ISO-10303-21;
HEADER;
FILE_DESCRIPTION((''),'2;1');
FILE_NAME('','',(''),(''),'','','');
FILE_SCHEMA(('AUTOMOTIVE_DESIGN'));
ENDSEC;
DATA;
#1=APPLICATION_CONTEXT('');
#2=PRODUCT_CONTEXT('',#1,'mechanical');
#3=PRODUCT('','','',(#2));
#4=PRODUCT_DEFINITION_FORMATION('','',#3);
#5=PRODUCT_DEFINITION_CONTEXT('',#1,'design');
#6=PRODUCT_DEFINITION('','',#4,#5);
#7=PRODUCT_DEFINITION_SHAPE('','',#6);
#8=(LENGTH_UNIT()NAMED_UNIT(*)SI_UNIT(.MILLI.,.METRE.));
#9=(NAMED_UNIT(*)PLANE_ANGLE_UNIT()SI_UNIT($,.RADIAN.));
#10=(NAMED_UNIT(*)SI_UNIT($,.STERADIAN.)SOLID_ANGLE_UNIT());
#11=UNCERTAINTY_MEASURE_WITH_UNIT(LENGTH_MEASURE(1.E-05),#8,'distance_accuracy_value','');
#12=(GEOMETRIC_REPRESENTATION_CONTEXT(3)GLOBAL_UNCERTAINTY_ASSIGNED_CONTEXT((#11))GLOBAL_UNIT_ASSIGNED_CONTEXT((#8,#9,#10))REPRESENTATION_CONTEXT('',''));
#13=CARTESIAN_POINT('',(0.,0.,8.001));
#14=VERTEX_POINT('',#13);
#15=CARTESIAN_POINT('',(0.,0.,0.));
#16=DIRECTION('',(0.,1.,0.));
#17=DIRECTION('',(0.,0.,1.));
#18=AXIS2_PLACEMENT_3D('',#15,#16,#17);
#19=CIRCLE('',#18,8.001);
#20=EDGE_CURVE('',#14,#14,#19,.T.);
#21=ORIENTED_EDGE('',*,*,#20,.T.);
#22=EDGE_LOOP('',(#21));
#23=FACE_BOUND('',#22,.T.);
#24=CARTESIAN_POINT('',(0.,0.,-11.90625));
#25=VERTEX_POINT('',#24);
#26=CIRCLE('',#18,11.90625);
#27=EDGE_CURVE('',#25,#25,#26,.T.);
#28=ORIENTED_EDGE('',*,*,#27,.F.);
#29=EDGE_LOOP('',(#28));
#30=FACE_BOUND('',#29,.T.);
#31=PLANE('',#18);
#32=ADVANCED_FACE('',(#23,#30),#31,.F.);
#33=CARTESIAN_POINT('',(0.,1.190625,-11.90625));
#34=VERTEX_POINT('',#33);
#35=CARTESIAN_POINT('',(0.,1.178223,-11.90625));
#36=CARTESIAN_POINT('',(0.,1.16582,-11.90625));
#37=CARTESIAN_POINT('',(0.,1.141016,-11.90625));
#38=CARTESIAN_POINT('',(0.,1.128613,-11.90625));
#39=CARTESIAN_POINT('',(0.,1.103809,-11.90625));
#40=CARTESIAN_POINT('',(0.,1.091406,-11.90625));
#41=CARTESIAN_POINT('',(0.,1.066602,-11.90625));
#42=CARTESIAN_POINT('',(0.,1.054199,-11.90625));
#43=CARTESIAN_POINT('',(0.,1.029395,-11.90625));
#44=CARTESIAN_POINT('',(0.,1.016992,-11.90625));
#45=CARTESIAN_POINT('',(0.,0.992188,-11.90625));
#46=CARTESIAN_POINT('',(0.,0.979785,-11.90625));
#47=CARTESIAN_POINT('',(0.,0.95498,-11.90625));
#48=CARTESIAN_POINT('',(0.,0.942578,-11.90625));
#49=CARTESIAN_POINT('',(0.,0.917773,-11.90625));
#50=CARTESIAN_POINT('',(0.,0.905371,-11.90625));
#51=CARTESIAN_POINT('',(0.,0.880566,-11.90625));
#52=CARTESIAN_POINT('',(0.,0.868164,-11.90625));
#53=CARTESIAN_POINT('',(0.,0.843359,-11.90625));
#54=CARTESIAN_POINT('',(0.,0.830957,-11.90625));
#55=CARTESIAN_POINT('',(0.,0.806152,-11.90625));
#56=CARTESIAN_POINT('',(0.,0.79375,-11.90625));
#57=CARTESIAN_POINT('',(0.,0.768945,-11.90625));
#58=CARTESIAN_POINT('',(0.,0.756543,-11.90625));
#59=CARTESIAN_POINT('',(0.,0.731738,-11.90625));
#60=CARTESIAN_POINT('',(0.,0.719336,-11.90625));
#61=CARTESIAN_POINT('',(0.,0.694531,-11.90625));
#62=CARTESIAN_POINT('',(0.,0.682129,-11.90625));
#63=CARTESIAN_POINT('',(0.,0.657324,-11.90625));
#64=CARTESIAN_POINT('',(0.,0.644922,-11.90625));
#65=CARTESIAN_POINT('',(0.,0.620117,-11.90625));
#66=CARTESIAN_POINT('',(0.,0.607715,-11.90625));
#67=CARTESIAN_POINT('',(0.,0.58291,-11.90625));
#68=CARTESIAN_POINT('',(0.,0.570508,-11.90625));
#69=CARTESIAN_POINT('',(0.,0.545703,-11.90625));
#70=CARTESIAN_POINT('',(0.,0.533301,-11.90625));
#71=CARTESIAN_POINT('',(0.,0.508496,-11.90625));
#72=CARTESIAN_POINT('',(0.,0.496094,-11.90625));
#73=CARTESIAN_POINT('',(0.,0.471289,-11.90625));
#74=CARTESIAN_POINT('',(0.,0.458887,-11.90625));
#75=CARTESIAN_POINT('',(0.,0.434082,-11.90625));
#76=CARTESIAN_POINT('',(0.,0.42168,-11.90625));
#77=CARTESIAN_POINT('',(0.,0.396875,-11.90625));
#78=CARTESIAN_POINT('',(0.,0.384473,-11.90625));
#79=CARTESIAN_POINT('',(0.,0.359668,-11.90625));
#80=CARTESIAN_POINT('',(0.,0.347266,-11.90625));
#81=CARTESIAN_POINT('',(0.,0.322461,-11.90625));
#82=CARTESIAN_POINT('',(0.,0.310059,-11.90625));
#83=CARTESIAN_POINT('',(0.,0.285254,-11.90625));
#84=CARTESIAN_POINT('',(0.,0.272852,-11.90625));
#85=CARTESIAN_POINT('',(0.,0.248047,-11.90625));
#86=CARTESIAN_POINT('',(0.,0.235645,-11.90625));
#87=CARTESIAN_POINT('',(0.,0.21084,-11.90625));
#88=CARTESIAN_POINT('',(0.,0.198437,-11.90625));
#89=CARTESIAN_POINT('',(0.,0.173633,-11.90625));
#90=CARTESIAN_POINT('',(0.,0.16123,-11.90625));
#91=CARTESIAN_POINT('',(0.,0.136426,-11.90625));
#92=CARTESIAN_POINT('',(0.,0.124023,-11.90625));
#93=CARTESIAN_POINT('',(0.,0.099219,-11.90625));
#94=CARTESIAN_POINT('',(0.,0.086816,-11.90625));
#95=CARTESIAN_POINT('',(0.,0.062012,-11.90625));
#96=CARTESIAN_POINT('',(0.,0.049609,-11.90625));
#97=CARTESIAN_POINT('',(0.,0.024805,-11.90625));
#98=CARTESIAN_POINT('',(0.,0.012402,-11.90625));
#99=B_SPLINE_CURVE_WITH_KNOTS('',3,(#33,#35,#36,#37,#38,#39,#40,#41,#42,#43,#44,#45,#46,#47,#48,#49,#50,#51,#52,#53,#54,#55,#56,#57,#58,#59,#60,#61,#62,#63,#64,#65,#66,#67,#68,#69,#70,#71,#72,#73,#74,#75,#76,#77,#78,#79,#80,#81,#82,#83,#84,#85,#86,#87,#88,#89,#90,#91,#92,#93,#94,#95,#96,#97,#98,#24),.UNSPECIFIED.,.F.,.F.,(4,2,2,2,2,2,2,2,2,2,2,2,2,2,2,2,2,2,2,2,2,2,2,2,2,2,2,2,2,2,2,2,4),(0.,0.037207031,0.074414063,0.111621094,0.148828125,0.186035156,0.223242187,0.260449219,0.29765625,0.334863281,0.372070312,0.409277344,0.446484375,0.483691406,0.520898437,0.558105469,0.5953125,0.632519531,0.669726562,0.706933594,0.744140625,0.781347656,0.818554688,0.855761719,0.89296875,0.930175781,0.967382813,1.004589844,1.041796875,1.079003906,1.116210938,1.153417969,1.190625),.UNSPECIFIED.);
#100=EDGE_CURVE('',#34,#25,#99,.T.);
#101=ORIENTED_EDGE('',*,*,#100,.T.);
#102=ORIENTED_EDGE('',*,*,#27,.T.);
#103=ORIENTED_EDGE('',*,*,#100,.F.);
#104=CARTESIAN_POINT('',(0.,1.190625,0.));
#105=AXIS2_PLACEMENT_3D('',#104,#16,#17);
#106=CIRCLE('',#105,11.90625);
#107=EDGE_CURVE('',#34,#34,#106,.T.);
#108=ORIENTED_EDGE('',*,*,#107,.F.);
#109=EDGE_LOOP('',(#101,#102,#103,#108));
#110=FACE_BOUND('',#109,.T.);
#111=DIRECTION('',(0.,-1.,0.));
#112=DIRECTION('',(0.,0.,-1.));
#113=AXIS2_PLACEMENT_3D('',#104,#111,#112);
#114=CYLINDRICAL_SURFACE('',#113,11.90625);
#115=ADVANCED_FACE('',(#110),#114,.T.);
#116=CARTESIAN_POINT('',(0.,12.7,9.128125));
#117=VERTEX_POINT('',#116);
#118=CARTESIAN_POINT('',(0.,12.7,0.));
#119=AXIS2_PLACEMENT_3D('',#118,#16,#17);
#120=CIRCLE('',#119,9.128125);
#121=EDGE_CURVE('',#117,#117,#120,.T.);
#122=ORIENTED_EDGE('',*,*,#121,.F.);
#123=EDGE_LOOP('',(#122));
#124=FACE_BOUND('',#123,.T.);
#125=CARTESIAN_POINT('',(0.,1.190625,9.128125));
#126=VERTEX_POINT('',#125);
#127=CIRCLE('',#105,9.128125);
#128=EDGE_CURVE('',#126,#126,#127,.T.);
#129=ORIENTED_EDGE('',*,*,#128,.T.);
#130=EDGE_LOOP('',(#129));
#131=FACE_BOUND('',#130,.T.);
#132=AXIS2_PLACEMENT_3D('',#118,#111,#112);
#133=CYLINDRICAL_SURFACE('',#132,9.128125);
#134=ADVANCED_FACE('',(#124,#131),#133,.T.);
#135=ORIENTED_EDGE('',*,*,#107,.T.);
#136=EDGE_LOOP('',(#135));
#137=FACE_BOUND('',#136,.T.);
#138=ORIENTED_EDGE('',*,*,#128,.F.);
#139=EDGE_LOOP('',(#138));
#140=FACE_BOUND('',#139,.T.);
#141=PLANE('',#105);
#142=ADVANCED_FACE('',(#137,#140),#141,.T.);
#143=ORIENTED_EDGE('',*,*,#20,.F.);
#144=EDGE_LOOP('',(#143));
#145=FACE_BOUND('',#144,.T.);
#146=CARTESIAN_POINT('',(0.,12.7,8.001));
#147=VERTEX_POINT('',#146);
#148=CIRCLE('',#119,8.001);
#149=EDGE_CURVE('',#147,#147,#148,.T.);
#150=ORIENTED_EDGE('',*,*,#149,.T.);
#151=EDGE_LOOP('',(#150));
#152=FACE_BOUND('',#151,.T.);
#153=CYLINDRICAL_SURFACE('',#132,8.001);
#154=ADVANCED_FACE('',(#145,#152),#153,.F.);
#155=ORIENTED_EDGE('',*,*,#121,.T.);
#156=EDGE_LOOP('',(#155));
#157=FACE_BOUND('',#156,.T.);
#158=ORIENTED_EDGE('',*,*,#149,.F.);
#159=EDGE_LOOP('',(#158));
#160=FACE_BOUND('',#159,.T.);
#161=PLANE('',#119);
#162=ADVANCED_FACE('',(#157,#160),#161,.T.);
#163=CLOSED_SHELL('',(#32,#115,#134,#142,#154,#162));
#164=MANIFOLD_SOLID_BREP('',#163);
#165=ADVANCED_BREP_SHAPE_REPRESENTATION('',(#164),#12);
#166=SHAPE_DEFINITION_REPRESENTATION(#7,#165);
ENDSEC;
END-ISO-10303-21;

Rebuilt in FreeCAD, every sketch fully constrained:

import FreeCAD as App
import Part
import Sketcher
from FreeCAD import Vector
Q = App.Units.Quantity

doc = App.newDocument("Part")
body = doc.addObject("PartDesign::Body", "Body")

# Sketch on XZ plane
sketch1 = body.newObject("Sketcher::SketchObject", "Sketch")
sketch1.AttachmentSupport = (doc.getObject("XZ_Plane"), [""])
sketch1.MapMode = "FlatFace"
sketch1.addGeometry([
    Part.Circle(Vector(0, 0, 0), Vector(0, 0, 1), 9),
    Part.Circle(Vector(0, 0, 0), Vector(0, 0, 1), 8),
], False)
sketch1.addConstraint([
    Sketcher.Constraint("Coincident", 0, 3, -1, 1),
    Sketcher.Constraint("Coincident", 1, 3, -1, 1),
    Sketcher.Constraint("Diameter", 1, Q("0.63 in")),
    Sketcher.Constraint("Diameter", 0, Q("0.71875 in")),
])
pad1 = body.newObject("PartDesign::Pad", "Pad")
pad1.Profile = sketch1
pad1.Length = Q("0.5 in")
pad1.Reversed = True

# Sketch on XZ plane
sketch2 = body.newObject("Sketcher::SketchObject", "Sketch001")
sketch2.AttachmentSupport = (doc.getObject("XZ_Plane"), [""])
sketch2.MapMode = "FlatFace"
sketch2.addGeometry([
    Part.Circle(Vector(0, 0, 0), Vector(0, 0, 1), 12),
    Part.Circle(Vector(0, 0, 0), Vector(0, 0, 1), 9),
], False)
sketch2.addConstraint([
    Sketcher.Constraint("Coincident", 0, 3, -1, 1),
    Sketcher.Constraint("Coincident", 1, 3, -1, 1),
    Sketcher.Constraint("Diameter", 0, Q("0.9375 in")),
    Sketcher.Constraint("Diameter", 1, Q("0.71875 in")),
])
pad2 = body.newObject("PartDesign::Pad", "Pad001")
pad2.Profile = sketch2
pad2.Length = Q("0.046875 in")
pad2.Reversed = True

doc.recompute()
